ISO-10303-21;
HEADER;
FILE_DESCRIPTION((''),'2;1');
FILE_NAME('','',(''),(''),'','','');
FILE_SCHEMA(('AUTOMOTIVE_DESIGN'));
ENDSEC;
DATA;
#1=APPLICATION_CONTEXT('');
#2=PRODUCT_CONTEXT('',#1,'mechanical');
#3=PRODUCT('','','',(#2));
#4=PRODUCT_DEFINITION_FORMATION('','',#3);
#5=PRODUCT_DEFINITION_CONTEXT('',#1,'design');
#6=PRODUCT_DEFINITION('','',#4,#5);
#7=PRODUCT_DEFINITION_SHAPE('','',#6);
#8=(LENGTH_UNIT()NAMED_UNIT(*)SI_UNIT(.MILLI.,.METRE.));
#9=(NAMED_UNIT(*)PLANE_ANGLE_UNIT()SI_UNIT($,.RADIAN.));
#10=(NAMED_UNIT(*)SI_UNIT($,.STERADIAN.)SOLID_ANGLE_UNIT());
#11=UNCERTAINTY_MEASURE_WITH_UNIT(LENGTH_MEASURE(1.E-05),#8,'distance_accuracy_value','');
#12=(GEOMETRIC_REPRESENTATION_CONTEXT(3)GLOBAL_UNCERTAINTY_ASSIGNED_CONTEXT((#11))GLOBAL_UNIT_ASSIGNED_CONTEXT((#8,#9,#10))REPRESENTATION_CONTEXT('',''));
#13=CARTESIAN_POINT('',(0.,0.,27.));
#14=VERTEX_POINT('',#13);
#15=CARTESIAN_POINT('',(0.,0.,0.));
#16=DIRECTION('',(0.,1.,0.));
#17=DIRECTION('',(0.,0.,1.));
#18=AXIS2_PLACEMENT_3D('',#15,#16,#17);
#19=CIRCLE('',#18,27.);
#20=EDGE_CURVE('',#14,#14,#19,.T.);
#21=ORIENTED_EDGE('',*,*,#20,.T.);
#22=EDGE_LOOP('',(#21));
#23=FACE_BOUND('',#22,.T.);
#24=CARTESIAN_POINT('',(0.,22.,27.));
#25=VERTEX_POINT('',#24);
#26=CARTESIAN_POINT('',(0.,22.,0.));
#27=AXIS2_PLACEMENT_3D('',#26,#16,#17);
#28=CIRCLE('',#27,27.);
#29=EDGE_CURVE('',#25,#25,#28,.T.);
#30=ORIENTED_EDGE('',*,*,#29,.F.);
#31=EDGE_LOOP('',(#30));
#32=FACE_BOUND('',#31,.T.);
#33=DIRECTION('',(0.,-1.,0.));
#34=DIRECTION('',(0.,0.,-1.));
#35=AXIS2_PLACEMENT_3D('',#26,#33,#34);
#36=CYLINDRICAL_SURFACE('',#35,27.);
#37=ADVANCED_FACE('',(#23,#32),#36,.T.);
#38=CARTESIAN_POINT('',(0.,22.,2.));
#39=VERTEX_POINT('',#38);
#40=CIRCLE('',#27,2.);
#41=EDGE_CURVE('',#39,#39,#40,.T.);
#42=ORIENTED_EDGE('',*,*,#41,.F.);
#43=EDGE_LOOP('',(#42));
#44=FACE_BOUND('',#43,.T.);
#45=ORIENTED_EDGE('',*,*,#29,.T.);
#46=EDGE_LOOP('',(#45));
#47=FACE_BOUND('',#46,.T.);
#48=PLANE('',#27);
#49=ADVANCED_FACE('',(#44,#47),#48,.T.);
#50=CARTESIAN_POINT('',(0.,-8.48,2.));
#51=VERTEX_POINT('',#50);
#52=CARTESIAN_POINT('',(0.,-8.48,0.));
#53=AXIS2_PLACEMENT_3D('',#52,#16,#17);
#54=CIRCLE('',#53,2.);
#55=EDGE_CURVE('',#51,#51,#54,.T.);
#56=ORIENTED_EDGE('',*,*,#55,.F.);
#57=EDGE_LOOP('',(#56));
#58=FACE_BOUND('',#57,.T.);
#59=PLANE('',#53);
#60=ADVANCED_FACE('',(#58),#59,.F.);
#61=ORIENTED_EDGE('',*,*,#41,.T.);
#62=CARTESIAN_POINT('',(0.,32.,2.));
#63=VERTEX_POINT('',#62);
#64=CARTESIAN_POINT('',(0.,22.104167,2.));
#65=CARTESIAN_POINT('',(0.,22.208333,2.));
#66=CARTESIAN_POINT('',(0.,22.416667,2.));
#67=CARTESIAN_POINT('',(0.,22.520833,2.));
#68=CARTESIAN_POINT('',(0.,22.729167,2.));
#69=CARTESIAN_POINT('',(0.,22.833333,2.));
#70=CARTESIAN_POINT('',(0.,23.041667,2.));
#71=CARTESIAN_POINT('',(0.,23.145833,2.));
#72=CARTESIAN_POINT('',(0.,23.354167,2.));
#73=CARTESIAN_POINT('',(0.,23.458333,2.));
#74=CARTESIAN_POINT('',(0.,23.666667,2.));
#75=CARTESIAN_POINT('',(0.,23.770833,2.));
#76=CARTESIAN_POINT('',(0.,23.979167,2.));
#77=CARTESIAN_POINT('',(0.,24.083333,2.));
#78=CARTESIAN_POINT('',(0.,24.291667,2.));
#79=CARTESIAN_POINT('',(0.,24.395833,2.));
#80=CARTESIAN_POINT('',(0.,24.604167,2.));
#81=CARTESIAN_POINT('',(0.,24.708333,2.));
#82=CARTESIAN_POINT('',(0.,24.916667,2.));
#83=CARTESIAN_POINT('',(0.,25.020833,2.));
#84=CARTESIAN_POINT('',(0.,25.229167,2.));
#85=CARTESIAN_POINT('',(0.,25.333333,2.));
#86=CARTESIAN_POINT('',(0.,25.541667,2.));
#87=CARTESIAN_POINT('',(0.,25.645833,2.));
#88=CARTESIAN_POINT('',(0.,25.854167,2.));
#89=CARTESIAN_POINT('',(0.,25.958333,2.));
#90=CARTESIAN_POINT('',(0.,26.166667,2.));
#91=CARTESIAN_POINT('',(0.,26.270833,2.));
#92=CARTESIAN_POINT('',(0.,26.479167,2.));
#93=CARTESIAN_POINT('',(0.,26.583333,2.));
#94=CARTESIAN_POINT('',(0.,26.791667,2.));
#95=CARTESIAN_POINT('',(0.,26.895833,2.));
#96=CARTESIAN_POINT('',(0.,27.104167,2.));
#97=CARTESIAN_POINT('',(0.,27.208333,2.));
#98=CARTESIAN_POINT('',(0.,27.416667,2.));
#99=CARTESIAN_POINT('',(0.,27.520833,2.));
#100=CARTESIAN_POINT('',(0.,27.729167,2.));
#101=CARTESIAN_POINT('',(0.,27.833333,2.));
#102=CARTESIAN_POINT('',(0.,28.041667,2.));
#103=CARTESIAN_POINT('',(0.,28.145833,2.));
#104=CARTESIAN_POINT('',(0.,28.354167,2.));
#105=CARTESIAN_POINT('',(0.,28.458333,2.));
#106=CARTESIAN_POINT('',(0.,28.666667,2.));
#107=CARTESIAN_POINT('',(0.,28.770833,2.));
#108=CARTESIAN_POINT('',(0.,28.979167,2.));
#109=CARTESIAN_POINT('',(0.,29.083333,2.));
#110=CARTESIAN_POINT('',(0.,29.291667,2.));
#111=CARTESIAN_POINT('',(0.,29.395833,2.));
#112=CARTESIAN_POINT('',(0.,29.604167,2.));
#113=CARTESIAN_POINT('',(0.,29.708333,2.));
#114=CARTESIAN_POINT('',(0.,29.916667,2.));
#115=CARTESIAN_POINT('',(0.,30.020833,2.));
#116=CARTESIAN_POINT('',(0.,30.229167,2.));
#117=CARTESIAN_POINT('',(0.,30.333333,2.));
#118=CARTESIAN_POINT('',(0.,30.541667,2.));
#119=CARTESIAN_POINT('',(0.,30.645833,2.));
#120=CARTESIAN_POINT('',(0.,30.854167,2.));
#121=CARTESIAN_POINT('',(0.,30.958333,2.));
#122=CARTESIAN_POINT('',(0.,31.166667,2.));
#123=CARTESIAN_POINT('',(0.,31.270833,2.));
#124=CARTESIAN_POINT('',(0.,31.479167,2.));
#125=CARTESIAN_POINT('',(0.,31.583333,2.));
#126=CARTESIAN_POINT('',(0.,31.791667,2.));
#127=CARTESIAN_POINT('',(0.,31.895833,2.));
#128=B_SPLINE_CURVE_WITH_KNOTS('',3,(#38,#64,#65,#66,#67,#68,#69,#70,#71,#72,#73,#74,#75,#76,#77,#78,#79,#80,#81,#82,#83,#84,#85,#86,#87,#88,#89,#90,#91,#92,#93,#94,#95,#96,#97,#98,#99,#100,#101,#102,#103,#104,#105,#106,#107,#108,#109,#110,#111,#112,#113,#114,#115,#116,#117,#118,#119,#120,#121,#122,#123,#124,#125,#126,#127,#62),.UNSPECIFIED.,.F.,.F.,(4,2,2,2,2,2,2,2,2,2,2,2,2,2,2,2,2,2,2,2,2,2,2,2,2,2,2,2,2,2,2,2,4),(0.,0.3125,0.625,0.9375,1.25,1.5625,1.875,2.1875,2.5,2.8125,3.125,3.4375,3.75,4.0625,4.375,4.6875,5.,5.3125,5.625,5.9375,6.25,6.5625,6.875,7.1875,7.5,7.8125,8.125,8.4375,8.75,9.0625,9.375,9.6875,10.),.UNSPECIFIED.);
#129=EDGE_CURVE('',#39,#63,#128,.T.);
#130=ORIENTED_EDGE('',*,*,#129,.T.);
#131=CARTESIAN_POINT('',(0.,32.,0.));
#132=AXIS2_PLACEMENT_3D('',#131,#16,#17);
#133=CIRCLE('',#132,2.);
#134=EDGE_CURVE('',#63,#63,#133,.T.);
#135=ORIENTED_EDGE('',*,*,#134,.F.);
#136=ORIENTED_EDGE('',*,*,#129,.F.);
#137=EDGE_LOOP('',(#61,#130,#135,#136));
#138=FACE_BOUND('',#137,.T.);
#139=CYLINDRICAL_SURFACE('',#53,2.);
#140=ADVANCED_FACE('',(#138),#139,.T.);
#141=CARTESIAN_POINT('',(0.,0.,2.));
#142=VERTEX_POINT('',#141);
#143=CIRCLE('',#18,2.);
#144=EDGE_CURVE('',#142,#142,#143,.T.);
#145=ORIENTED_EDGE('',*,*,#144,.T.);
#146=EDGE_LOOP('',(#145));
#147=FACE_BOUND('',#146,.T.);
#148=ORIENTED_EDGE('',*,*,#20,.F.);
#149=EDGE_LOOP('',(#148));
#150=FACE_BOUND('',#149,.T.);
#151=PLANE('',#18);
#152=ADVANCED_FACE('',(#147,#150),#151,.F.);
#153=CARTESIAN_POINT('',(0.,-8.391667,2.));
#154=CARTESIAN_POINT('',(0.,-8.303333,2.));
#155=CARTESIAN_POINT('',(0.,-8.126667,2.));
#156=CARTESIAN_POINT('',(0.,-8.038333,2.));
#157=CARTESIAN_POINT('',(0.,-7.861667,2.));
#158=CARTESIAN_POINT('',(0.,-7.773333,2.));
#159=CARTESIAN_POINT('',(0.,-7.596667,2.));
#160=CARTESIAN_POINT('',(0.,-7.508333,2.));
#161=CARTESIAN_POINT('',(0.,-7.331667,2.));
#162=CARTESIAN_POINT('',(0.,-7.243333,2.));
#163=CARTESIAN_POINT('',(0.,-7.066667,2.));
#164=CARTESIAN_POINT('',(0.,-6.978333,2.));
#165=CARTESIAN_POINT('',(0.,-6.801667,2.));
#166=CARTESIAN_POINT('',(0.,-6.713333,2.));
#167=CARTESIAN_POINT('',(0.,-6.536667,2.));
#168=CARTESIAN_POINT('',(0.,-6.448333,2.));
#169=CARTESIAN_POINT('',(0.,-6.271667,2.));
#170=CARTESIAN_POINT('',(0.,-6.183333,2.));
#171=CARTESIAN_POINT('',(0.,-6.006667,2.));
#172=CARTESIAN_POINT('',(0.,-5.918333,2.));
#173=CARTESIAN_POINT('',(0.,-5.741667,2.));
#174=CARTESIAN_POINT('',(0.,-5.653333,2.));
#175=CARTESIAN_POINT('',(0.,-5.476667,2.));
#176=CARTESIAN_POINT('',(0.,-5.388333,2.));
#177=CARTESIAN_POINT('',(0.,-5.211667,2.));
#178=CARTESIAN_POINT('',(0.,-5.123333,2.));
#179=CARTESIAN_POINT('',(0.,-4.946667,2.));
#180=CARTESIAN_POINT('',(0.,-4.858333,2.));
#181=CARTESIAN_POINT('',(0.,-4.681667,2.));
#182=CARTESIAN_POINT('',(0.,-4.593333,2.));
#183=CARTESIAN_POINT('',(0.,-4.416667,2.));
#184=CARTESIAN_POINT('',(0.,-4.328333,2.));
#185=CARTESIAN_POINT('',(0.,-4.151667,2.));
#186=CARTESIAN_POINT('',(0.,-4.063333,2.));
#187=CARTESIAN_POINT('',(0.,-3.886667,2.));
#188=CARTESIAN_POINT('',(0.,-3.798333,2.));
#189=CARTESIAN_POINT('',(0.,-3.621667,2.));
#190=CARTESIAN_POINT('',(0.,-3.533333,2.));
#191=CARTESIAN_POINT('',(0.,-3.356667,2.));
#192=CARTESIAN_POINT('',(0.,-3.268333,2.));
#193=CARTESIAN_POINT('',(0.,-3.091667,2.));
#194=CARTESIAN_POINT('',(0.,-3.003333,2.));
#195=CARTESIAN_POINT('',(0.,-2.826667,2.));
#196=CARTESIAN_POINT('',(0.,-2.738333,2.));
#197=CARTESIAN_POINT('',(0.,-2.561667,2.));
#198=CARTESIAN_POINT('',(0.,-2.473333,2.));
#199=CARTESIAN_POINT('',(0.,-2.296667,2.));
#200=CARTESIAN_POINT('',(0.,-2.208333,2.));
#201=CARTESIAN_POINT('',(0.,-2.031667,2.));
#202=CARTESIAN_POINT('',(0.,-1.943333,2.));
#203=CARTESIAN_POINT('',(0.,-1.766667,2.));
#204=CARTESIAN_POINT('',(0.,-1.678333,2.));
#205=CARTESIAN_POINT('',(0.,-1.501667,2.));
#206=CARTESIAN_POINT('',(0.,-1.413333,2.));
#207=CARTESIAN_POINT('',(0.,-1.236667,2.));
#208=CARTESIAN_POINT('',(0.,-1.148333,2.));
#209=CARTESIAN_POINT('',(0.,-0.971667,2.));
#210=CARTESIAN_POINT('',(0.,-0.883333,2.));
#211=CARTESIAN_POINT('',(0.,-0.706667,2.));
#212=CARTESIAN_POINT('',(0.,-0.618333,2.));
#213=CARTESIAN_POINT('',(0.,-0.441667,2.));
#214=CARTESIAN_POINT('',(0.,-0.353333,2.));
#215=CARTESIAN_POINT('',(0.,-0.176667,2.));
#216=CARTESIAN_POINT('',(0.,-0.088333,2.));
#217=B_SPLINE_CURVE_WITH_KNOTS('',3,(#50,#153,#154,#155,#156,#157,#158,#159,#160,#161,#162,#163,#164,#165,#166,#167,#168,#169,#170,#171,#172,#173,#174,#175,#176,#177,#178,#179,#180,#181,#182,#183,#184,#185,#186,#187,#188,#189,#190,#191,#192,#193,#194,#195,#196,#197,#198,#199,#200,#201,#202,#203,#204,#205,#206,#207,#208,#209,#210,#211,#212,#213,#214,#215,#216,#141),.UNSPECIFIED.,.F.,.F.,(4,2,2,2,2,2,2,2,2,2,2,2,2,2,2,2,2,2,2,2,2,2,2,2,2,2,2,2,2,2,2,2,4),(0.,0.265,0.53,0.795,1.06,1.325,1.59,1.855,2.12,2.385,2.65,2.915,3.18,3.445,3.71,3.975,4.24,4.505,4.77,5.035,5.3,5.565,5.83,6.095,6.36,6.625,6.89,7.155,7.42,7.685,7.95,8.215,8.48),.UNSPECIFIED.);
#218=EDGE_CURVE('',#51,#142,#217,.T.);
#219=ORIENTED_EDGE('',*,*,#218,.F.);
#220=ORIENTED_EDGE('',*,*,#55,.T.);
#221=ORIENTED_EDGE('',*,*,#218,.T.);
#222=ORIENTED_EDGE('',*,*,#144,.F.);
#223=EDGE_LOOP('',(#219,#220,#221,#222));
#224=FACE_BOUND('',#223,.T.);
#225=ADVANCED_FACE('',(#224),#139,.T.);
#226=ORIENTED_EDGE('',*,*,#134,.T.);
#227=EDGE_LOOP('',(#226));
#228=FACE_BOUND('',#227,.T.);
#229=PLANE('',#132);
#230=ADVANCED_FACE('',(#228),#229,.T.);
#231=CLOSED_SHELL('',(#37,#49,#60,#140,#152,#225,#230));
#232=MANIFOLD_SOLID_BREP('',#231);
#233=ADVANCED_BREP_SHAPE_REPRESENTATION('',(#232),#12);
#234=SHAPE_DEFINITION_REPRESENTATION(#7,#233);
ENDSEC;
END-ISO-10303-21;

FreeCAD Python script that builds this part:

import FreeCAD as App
import Part
import Sketcher
from FreeCAD import Vector

doc = App.newDocument("Part")
body = doc.addObject("PartDesign::Body", "Body")

# Sketch on XZ plane
sketch1 = body.newObject("Sketcher::SketchObject", "Sketch")
sketch1.AttachmentSupport = (doc.getObject("XZ_Plane"), [""])
sketch1.MapMode = "FlatFace"
sketch1.addGeometry(Part.Circle(Vector(0, 0, 0), Vector(0, 0, 1), 27), False)
sketch1.addConstraint(Sketcher.Constraint("Coincident", 0, 3, -1, 1))
sketch1.addConstraint(Sketcher.Constraint("Diameter", 0, 54.0))
pad1 = body.newObject("PartDesign::Pad", "Pad")
pad1.Profile = sketch1
pad1.Length = 22
pad1.Reversed = True

# Sketch on XZ plane
sketch2 = body.newObject("Sketcher::SketchObject", "Sketch001")
sketch2.AttachmentSupport = (doc.getObject("XZ_Plane"), [""])
sketch2.MapMode = "FlatFace"
sketch2.AttachmentOffset = App.Placement(Vector(0, 0, -22), App.Rotation())
sketch2.addGeometry(Part.Circle(Vector(0, 0, 0), Vector(0, 0, 1), 2), False)
sketch2.addConstraint(Sketcher.Constraint("Coincident", 0, 3, -1, 1))
sketch2.addConstraint(Sketcher.Constraint("Diameter", 0, 4.0))
pad2 = body.newObject("PartDesign::Pad", "Pad001")
pad2.Profile = sketch2
pad2.Type = "TwoLengths"
pad2.Length = 10
pad2.Length2 = 30.48
pad2.Reversed = True

doc.recompute()
